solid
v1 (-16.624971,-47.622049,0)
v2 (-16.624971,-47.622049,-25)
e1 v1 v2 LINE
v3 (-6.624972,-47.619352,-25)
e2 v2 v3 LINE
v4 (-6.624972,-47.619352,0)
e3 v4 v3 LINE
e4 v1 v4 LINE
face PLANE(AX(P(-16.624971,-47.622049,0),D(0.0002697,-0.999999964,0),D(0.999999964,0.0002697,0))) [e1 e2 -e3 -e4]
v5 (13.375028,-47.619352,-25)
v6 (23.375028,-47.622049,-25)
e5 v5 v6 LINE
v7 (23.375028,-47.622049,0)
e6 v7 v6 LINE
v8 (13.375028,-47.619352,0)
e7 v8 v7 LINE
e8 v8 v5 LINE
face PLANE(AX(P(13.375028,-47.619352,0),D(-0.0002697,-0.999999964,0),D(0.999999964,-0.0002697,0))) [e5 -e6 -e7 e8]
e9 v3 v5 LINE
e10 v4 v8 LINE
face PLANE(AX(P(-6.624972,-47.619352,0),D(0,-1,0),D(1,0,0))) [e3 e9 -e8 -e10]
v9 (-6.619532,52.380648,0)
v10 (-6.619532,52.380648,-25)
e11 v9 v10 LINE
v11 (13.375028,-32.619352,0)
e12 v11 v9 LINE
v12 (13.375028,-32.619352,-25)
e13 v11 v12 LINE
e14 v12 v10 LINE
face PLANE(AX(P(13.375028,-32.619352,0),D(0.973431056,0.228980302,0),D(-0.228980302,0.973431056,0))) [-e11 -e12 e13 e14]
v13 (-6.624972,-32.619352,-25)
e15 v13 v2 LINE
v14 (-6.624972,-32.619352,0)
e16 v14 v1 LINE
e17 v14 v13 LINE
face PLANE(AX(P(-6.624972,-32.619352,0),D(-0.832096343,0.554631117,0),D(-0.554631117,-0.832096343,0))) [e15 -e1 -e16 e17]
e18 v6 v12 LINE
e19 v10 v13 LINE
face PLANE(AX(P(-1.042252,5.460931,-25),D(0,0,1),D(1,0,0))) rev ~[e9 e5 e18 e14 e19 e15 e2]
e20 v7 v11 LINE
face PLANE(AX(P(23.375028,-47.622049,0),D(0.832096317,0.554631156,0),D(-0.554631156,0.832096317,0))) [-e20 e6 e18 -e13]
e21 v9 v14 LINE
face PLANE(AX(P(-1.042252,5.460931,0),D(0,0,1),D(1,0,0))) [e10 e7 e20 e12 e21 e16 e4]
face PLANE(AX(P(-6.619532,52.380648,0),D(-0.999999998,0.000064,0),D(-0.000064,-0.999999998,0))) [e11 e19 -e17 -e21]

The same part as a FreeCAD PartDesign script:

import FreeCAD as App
import Part
import Sketcher

V = App.Vector


def add_polygon(sketch, points):
    """Adds a closed chain of lines whose ends are joined by coincident constraints."""
    first, n = sketch.GeometryCount, len(points)
    for a, b in zip(points, points[1:] + points[:1]):
        sketch.addGeometry(Part.LineSegment(App.Vector(*a, 0), App.Vector(*b, 0)), False)
    for i in range(n):
        sketch.addConstraint(Sketcher.Constraint("Coincident", first + i, 2, first + (i + 1) % n, 1))

doc = App.newDocument("Part")
body = doc.addObject("PartDesign::Body", "Body")

# Sketch on XY plane
sketch1 = doc.addObject("Sketcher::SketchObject", "Sketch")
body.addObject(sketch1)
sketch1.AttachmentSupport = (doc.XY_Plane, [""])
sketch1.MapMode = "FlatFace"
add_polygon(sketch1, [(-7, 52), (-7, -33), (-17, -48), (-7, -48), (13, -48), (23, -48), (13, -33)])  # lines 0-6
sketch1.addConstraint([
    Sketcher.Constraint("Horizontal", 3),
    Sketcher.Constraint("Horizontal", 1, 2, 4, 2),
    Sketcher.Constraint("Horizontal", 0, 2, 5, 2),
    Sketcher.Constraint("Vertical", 0, 2, 2, 2),
    Sketcher.Constraint("Vertical", 3, 2, 5, 2),
    Sketcher.Constraint("Equal", 2, 4),
    Sketcher.Constraint("DistanceX", 3, 1, 3, 2, 20.0),
    Sketcher.Constraint("Distance", 0, 85.0),
    Sketcher.Constraint("Distance", 2, 9.999999),
    Sketcher.Constraint("DistanceY", 2, 2, 0, 2, 15.0),
    Sketcher.Constraint("Distance", 1, 18.03),
    Sketcher.Constraint("Distance", 6, 87.32),
    Sketcher.Constraint("DistanceX", 0, 2, -1, 1, 6.624972),
    Sketcher.Constraint("DistanceY", 1, 2, -1, 1, 47.622049),
])
pad1 = doc.addObject("PartDesign::Pad", "Pad")
body.addObject(pad1)
pad1.Profile = sketch1
pad1.Length = 25
pad1.Reversed = True

doc.recompute()
